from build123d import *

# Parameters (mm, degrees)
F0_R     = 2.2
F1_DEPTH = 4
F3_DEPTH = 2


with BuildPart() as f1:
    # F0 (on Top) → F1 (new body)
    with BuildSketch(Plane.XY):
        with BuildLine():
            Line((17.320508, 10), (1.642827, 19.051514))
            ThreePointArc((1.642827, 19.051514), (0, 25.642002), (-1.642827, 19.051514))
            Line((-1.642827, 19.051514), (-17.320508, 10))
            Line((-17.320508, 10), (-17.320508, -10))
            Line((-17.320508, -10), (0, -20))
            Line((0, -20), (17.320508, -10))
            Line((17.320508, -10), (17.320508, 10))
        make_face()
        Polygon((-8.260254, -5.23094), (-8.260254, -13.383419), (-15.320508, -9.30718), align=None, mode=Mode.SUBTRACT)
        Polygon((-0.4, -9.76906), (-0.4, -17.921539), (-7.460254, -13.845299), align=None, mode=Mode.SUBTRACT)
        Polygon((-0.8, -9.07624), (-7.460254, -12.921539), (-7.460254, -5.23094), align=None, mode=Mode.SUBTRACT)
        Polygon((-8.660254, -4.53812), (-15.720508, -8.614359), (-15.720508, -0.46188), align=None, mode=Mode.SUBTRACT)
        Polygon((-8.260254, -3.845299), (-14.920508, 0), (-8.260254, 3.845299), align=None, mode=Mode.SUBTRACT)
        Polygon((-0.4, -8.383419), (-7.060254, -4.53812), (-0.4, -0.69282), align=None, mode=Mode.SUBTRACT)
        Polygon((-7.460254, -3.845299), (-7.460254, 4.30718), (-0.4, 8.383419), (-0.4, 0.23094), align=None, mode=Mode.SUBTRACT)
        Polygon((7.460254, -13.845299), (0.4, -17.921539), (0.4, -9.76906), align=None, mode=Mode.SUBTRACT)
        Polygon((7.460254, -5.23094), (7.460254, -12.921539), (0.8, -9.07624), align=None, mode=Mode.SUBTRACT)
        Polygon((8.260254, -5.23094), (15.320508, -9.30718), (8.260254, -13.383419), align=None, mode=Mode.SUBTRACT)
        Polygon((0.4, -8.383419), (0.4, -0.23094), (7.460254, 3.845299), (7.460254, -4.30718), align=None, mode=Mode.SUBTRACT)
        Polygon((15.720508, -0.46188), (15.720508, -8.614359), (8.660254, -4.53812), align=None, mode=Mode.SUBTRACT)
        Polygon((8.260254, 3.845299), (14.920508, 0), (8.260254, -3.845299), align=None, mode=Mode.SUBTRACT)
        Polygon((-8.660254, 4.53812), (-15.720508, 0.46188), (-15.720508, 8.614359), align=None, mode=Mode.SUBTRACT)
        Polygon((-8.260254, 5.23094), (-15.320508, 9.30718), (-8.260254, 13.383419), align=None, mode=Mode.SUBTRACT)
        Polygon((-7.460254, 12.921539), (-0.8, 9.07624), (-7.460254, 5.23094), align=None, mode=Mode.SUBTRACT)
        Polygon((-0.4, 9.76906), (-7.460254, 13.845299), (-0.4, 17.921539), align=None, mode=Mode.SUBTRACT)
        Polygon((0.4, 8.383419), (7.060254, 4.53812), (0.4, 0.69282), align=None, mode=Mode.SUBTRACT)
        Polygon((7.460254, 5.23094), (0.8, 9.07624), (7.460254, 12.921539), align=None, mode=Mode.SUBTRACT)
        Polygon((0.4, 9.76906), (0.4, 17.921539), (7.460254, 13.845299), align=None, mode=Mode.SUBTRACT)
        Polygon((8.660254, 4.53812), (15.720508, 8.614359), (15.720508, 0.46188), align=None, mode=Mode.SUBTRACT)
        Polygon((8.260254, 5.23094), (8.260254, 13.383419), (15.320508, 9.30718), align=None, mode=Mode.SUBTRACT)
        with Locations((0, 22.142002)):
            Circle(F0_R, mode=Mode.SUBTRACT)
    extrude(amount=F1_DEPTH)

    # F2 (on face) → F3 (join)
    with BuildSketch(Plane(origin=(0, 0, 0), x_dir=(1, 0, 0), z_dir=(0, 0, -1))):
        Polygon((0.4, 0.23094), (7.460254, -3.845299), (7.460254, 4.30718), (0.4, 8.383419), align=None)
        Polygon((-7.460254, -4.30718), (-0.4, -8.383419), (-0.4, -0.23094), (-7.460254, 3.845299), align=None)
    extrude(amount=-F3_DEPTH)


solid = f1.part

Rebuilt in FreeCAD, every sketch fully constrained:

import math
import FreeCAD as App
import Part
import Sketcher

V = App.Vector
Q = App.Units.Quantity

doc = App.newDocument("Part")
body = doc.addObject("PartDesign::Body", "Body")

sketch1 = doc.addObject("Sketcher::SketchObject", "Sketch")
body.addObject(sketch1)
sketch1.AttachmentSupport = (doc.XY_Plane, [""])
sketch1.MapMode = "FlatFace"
sketch1.addGeometry([
    Part.LineSegment(V(17.3, 10, 0), V(1.6, 19.1, 0)),
    Part.ArcOfCircle(Part.Circle(V(0, 22.1, 0), V(0, 0, 1), 3.5), math.radians(-62), math.radians(242)),
    Part.LineSegment(V(-1.6, 19.1, 0), V(-17.3, 10, 0)),
    Part.LineSegment(V(-17.3, 10, 0), V(-17.3, -10, 0)),
    Part.LineSegment(V(-17.3, -10, 0), V(0, -20, 0)),
    Part.LineSegment(V(0, -20, 0), V(17.3, -10, 0)),
    Part.LineSegment(V(17.3, -10, 0), V(17.3, 10, 0)),
    Part.LineSegment(V(-15.3, -9.3, 0), V(-8.3, -5.2, 0)),
    Part.LineSegment(V(-8.3, -5.2, 0), V(-8.3, -13.4, 0)),
    Part.LineSegment(V(-8.3, -13.4, 0), V(-15.3, -9.3, 0)),
    Part.LineSegment(V(-7.5, -13.8, 0), V(-0.4, -9.8, 0)),
    Part.LineSegment(V(-0.4, -9.8, 0), V(-0.4, -17.9, 0)),
    Part.LineSegment(V(-0.4, -17.9, 0), V(-7.5, -13.8, 0)),
    Part.LineSegment(V(-7.5, -5.2, 0), V(-0.8, -9.1, 0)),
    Part.LineSegment(V(-0.8, -9.1, 0), V(-7.5, -12.9, 0)),
    Part.LineSegment(V(-7.5, -12.9, 0), V(-7.5, -5.2, 0)),
    Part.LineSegment(V(-15.7, -0.5, 0), V(-8.7, -4.5, 0)),
    Part.LineSegment(V(-8.7, -4.5, 0), V(-15.7, -8.6, 0)),
    Part.LineSegment(V(-15.7, -8.6, 0), V(-15.7, -0.5, 0)),
    Part.LineSegment(V(-8.3, 3.8, 0), V(-8.3, -3.8, 0)),
    Part.LineSegment(V(-8.3, -3.8, 0), V(-14.9, 0, 0)),
    Part.LineSegment(V(-14.9, 0, 0), V(-8.3, 3.8, 0)),
    Part.LineSegment(V(-0.4, -0.7, 0), V(-0.4, -8.4, 0)),
    Part.LineSegment(V(-0.4, -8.4, 0), V(-7.1, -4.5, 0)),
    Part.LineSegment(V(-7.1, -4.5, 0), V(-0.4, -0.7, 0)),
    Part.LineSegment(V(-0.4, 0.2, 0), V(-7.5, -3.8, 0)),
    Part.LineSegment(V(-7.5, -3.8, 0), V(-7.5, 4.3, 0)),
    Part.LineSegment(V(-7.5, 4.3, 0), V(-0.4, 8.4, 0)),
    Part.LineSegment(V(-0.4, 8.4, 0), V(-0.4, 0.2, 0)),
    Part.LineSegment(V(0.4, -9.8, 0), V(7.5, -13.8, 0)),
    Part.LineSegment(V(7.5, -13.8, 0), V(0.4, -17.9, 0)),
    Part.LineSegment(V(0.4, -17.9, 0), V(0.4, -9.8, 0)),
    Part.LineSegment(V(0.8, -9.1, 0), V(7.5, -5.2, 0)),
    Part.LineSegment(V(7.5, -5.2, 0), V(7.5, -12.9, 0)),
    Part.LineSegment(V(7.5, -12.9, 0), V(0.8, -9.1, 0)),
    Part.LineSegment(V(8.3, -13.4, 0), V(8.3, -5.2, 0)),
    Part.LineSegment(V(8.3, -5.2, 0), V(15.3, -9.3, 0)),
    Part.LineSegment(V(15.3, -9.3, 0), V(8.3, -13.4, 0)),
    Part.LineSegment(V(7.5, -4.3, 0), V(0.4, -8.4, 0)),
    Part.LineSegment(V(0.4, -8.4, 0), V(0.4, -0.2, 0)),
    Part.LineSegment(V(0.4, -0.2, 0), V(7.5, 3.8, 0)),
    Part.LineSegment(V(7.5, 3.8, 0), V(7.5, -4.3, 0)),
    Part.LineSegment(V(8.7, -4.5, 0), V(15.7, -0.5, 0)),
    Part.LineSegment(V(15.7, -0.5, 0), V(15.7, -8.6, 0)),
    Part.LineSegment(V(15.7, -8.6, 0), V(8.7, -4.5, 0)),
    Part.LineSegment(V(8.3, -3.8, 0), V(8.3, 3.8, 0)),
    Part.LineSegment(V(8.3, 3.8, 0), V(14.9, 0, 0)),
    Part.LineSegment(V(14.9, 0, 0), V(8.3, -3.8, 0)),
    Part.LineSegment(V(-15.7, 8.6, 0), V(-8.7, 4.5, 0)),
    Part.LineSegment(V(-8.7, 4.5, 0), V(-15.7, 0.5, 0)),
    Part.LineSegment(V(-15.7, 0.5, 0), V(-15.7, 8.6, 0)),
    Part.LineSegment(V(-8.3, 13.4, 0), V(-8.3, 5.2, 0)),
    Part.LineSegment(V(-8.3, 5.2, 0), V(-15.3, 9.3, 0)),
    Part.LineSegment(V(-15.3, 9.3, 0), V(-8.3, 13.4, 0)),
    Part.LineSegment(V(-7.5, 5.2, 0), V(-7.5, 12.9, 0)),
    Part.LineSegment(V(-7.5, 12.9, 0), V(-0.8, 9.1, 0)),
    Part.LineSegment(V(-0.8, 9.1, 0), V(-7.5, 5.2, 0)),
    Part.LineSegment(V(-0.4, 17.9, 0), V(-0.4, 9.8, 0)),
    Part.LineSegment(V(-0.4, 9.8, 0), V(-7.5, 13.8, 0)),
    Part.LineSegment(V(-7.5, 13.8, 0), V(-0.4, 17.9, 0)),
    Part.Circle(V(0, 22.1, 0), V(0, 0, 1), 2.2),
    Part.LineSegment(V(0.4, 0.7, 0), V(0.4, 8.4, 0)),
    Part.LineSegment(V(0.4, 8.4, 0), V(7.1, 4.5, 0)),
    Part.LineSegment(V(7.1, 4.5, 0), V(0.4, 0.7, 0)),
    Part.LineSegment(V(7.5, 12.9, 0), V(7.5, 5.2, 0)),
    Part.LineSegment(V(7.5, 5.2, 0), V(0.8, 9.1, 0)),
    Part.LineSegment(V(0.8, 9.1, 0), V(7.5, 12.9, 0)),
    Part.LineSegment(V(15.7, 0.5, 0), V(8.7, 4.5, 0)),
    Part.LineSegment(V(8.7, 4.5, 0), V(15.7, 8.6, 0)),
    Part.LineSegment(V(15.7, 8.6, 0), V(15.7, 0.5, 0)),
    Part.LineSegment(V(15.3, 9.3, 0), V(8.3, 5.2, 0)),
    Part.LineSegment(V(8.3, 5.2, 0), V(8.3, 13.4, 0)),
    Part.LineSegment(V(8.3, 13.4, 0), V(15.3, 9.3, 0)),
    Part.LineSegment(V(7.5, 13.8, 0), V(0.4, 9.8, 0)),
    Part.LineSegment(V(0.4, 9.8, 0), V(0.4, 17.9, 0)),
    Part.LineSegment(V(0.4, 17.9, 0), V(7.5, 13.8, 0)),
], False)
sketch1.addConstraint([
    Sketcher.Constraint("Coincident", 0, 2, 1, 1),
    Sketcher.Constraint("Coincident", 1, 2, 2, 1),
    Sketcher.Constraint("Coincident", 2, 2, 3, 1),
    Sketcher.Constraint("Coincident", 3, 2, 4, 1),
    Sketcher.Constraint("Coincident", 4, 2, 5, 1),
    Sketcher.Constraint("Coincident", 5, 2, 6, 1),
    Sketcher.Constraint("Coincident", 6, 2, 0, 1),
    Sketcher.Constraint("Coincident", 7, 2, 8, 1),
    Sketcher.Constraint("Coincident", 8, 2, 9, 1),
    Sketcher.Constraint("Coincident", 9, 2, 7, 1),
    Sketcher.Constraint("Coincident", 10, 2, 11, 1),
    Sketcher.Constraint("Coincident", 11, 2, 12, 1),
    Sketcher.Constraint("Coincident", 12, 2, 10, 1),
    Sketcher.Constraint("Coincident", 13, 2, 14, 1),
    Sketcher.Constraint("Coincident", 14, 2, 15, 1),
    Sketcher.Constraint("Coincident", 15, 2, 13, 1),
    Sketcher.Constraint("Coincident", 16, 2, 17, 1),
    Sketcher.Constraint("Coincident", 17, 2, 18, 1),
    Sketcher.Constraint("Coincident", 18, 2, 16, 1),
    Sketcher.Constraint("Coincident", 19, 2, 20, 1),
    Sketcher.Constraint("Coincident", 20, 2, 21, 1),
    Sketcher.Constraint("Coincident", 21, 2, 19, 1),
    Sketcher.Constraint("Coincident", 22, 2, 23, 1),
    Sketcher.Constraint("Coincident", 23, 2, 24, 1),
    Sketcher.Constraint("Coincident", 24, 2, 22, 1),
    Sketcher.Constraint("Coincident", 25, 2, 26, 1),
    Sketcher.Constraint("Coincident", 26, 2, 27, 1),
    Sketcher.Constraint("Coincident", 27, 2, 28, 1),
    Sketcher.Constraint("Coincident", 28, 2, 25, 1),
    Sketcher.Constraint("Coincident", 29, 2, 30, 1),
    Sketcher.Constraint("Coincident", 30, 2, 31, 1),
    Sketcher.Constraint("Coincident", 31, 2, 29, 1),
    Sketcher.Constraint("Coincident", 32, 2, 33, 1),
    Sketcher.Constraint("Coincident", 33, 2, 34, 1),
    Sketcher.Constraint("Coincident", 34, 2, 32, 1),
    Sketcher.Constraint("Coincident", 35, 2, 36, 1),
    Sketcher.Constraint("Coincident", 36, 2, 37, 1),
    Sketcher.Constraint("Coincident", 37, 2, 35, 1),
    Sketcher.Constraint("Coincident", 38, 2, 39, 1),
    Sketcher.Constraint("Coincident", 39, 2, 40, 1),
    Sketcher.Constraint("Coincident", 40, 2, 41, 1),
    Sketcher.Constraint("Coincident", 41, 2, 38, 1),
    Sketcher.Constraint("Coincident", 42, 2, 43, 1),
    Sketcher.Constraint("Coincident", 43, 2, 44, 1),
    Sketcher.Constraint("Coincident", 44, 2, 42, 1),
    Sketcher.Constraint("Coincident", 45, 2, 46, 1),
    Sketcher.Constraint("Coincident", 46, 2, 47, 1),
    Sketcher.Constraint("Coincident", 47, 2, 45, 1),
    Sketcher.Constraint("Coincident", 48, 2, 49, 1),
    Sketcher.Constraint("Coincident", 49, 2, 50, 1),
    Sketcher.Constraint("Coincident", 50, 2, 48, 1),
    Sketcher.Constraint("Coincident", 51, 2, 52, 1),
    Sketcher.Constraint("Coincident", 52, 2, 53, 1),
    Sketcher.Constraint("Coincident", 53, 2, 51, 1),
    Sketcher.Constraint("Coincident", 54, 2, 55, 1),
    Sketcher.Constraint("Coincident", 55, 2, 56, 1),
    Sketcher.Constraint("Coincident", 56, 2, 54, 1),
    Sketcher.Constraint("Coincident", 57, 2, 58, 1),
    Sketcher.Constraint("Coincident", 58, 2, 59, 1),
    Sketcher.Constraint("Coincident", 59, 2, 57, 1),
    Sketcher.Constraint("Coincident", 61, 2, 62, 1),
    Sketcher.Constraint("Coincident", 62, 2, 63, 1),
    Sketcher.Constraint("Coincident", 63, 2, 61, 1),
    Sketcher.Constraint("Coincident", 64, 2, 65, 1),
    Sketcher.Constraint("Coincident", 65, 2, 66, 1),
    Sketcher.Constraint("Coincident", 66, 2, 64, 1),
    Sketcher.Constraint("Coincident", 67, 2, 68, 1),
    Sketcher.Constraint("Coincident", 68, 2, 69, 1),
    Sketcher.Constraint("Coincident", 69, 2, 67, 1),
    Sketcher.Constraint("Coincident", 70, 2, 71, 1),
    Sketcher.Constraint("Coincident", 71, 2, 72, 1),
    Sketcher.Constraint("Coincident", 72, 2, 70, 1),
    Sketcher.Constraint("Coincident", 73, 2, 74, 1),
    Sketcher.Constraint("Coincident", 74, 2, 75, 1),
    Sketcher.Constraint("Coincident", 75, 2, 73, 1),
    Sketcher.Constraint("Vertical", 3),
    Sketcher.Constraint("Vertical", 6),
    Sketcher.Constraint("Vertical", 8),
    Sketcher.Constraint("Vertical", 11),
    Sketcher.Constraint("Vertical", 15),
    Sketcher.Constraint("Vertical", 18),
    Sketcher.Constraint("Vertical", 19),
    Sketcher.Constraint("Vertical", 22),
    Sketcher.Constraint("Vertical", 26),
    Sketcher.Constraint("Vertical", 28),
    Sketcher.Constraint("Vertical", 31),
    Sketcher.Constraint("Vertical", 33),
    Sketcher.Constraint("Vertical", 35),
    Sketcher.Constraint("Vertical", 39),
    Sketcher.Constraint("Vertical", 41),
    Sketcher.Constraint("Vertical", 43),
    Sketcher.Constraint("Vertical", 45),
    Sketcher.Constraint("Vertical", 50),
    Sketcher.Constraint("Vertical", 51),
    Sketcher.Constraint("Vertical", 54),
    Sketcher.Constraint("Vertical", 57),
    Sketcher.Constraint("Vertical", 61),
    Sketcher.Constraint("Vertical", 64),
    Sketcher.Constraint("Vertical", 69),
    Sketcher.Constraint("Vertical", 71),
    Sketcher.Constraint("Vertical", 74),
    Sketcher.Constraint("Coincident", 60, 3, 1, 3),
    Sketcher.Constraint("Symmetric", 2, 2, 5, 2, -1, 1),
    Sketcher.Constraint("Symmetric", 27, 2, 38, 2, -1, 1),
    Sketcher.Constraint("Symmetric", 25, 2, 40, 2, -1, 1),
    Sketcher.Constraint("Symmetric", 19, 2, 45, 2, -1, 1),
    Sketcher.Constraint("Symmetric", 20, 2, 46, 2, -1, 1),
    Sketcher.Constraint("Symmetric", 44, 2, 48, 2, -1, 1),
    Sketcher.Constraint("Symmetric", 42, 2, 49, 2, -1, 1),
    Sketcher.Constraint("Symmetric", 35, 2, 51, 2, -1, 1),
    Sketcher.Constraint("Symmetric", 36, 2, 52, 2, -1, 1),
    Sketcher.Constraint("Symmetric", 33, 2, 54, 2, -1, 1),
    Sketcher.Constraint("Symmetric", 34, 2, 55, 2, -1, 1),
    Sketcher.Constraint("Symmetric", 31, 2, 57, 2, -1, 1),
    Sketcher.Constraint("Symmetric", 29, 2, 58, 2, -1, 1),
    Sketcher.Constraint("Symmetric", 22, 2, 61, 2, -1, 1),
    Sketcher.Constraint("Symmetric", 23, 2, 62, 2, -1, 1),
    Sketcher.Constraint("Symmetric", 15, 2, 64, 2, -1, 1),
    Sketcher.Constraint("Symmetric", 13, 2, 65, 2, -1, 1),
    Sketcher.Constraint("Symmetric", 16, 2, 67, 2, -1, 1),
    Sketcher.Constraint("Symmetric", 17, 2, 68, 2, -1, 1),
    Sketcher.Constraint("Symmetric", 7, 2, 70, 2, -1, 1),
    Sketcher.Constraint("Symmetric", 9, 2, 72, 2, -1, 1),
    Sketcher.Constraint("Symmetric", 10, 2, 73, 2, -1, 1),
    Sketcher.Constraint("Symmetric", 12, 2, 75, 2, -1, 1),
    Sketcher.Constraint("Symmetric", 0, 2, 1, 2, -2),
    Sketcher.Constraint("Symmetric", 12, 2, 29, 2, -2),
    Sketcher.Constraint("Symmetric", 11, 2, 30, 2, -2),
    Sketcher.Constraint("Symmetric", 15, 2, 32, 2, -2),
    Sketcher.Constraint("Symmetric", 13, 2, 34, 2, -2),
    Sketcher.Constraint("Symmetric", 7, 2, 35, 2, -2),
    Sketcher.Constraint("Symmetric", 9, 2, 36, 2, -2),
    Sketcher.Constraint("Symmetric", 22, 2, 38, 2, -2),
    Sketcher.Constraint("Symmetric", 18, 2, 42, 2, -2),
    Sketcher.Constraint("Symmetric", 16, 2, 44, 2, -2),
    Sketcher.Constraint("PointOnObject", 4, 2, -2),
    Sketcher.Constraint("PointOnObject", 20, 2, -1),
    Sketcher.Constraint("Parallel", 0, 4),
    Sketcher.Constraint("Parallel", 2, 5),
    Sketcher.Constraint("Parallel", 5, 7),
    Sketcher.Constraint("Parallel", 4, 9),
    Sketcher.Constraint("Parallel", 7, 10),
    Sketcher.Constraint("Parallel", 9, 12),
    Sketcher.Constraint("Parallel", 12, 13),
    Sketcher.Constraint("Parallel", 10, 14),
    Sketcher.Constraint("Parallel", 13, 16),
    Sketcher.Constraint("Parallel", 14, 17),
    Sketcher.Constraint("Parallel", 16, 20),
    Sketcher.Constraint("Parallel", 17, 21),
    Sketcher.Constraint("Parallel", 20, 23),
    Sketcher.Constraint("Parallel", 21, 24),
    Sketcher.Constraint("Parallel", 24, 25),
    Sketcher.Constraint("Parallel", 25, 27),
    Sketcher.Constraint("Parallel", 23, 29),
    Sketcher.Constraint("Parallel", 27, 30),
    Sketcher.Constraint("Parallel", 29, 34),
    Sketcher.Constraint("Parallel", 32, 37),
    Sketcher.Constraint("Parallel", 37, 38),
    Sketcher.Constraint("Parallel", 38, 40),
    Sketcher.Constraint("Parallel", 36, 44),
    Sketcher.Constraint("Parallel", 42, 47),
    Sketcher.Constraint("Parallel", 46, 48),
    Sketcher.Constraint("Parallel", 49, 53),
    Sketcher.Constraint("Parallel", 53, 56),
    Sketcher.Constraint("Parallel", 56, 59),
    Sketcher.Constraint("Parallel", 59, 63),
    Sketcher.Constraint("Parallel", 63, 66),
    Sketcher.Constraint("Parallel", 65, 67),
    Sketcher.Constraint("Parallel", 67, 72),
    Sketcher.Constraint("Parallel", 72, 75),
    Sketcher.Constraint("Horizontal", 7, 2, 15, 2),
    Sketcher.Constraint("Horizontal", 16, 2, 23, 2),
    Sketcher.Constraint("Horizontal", 19, 2, 25, 2),
    Sketcher.Constraint("Vertical", 12, 2, 14, 2),
    Sketcher.Constraint("Vertical", 8, 2, 19, 2),
    Sketcher.Constraint("Vertical", 11, 2, 22, 2),
    Sketcher.Constraint("Vertical", 15, 2, 25, 2),
    Sketcher.Constraint("Equal", 8, 11),
    Sketcher.Constraint("Equal", 11, 18),
    Sketcher.Constraint("Equal", 15, 19),
    Sketcher.Constraint("Equal", 19, 22),
    Sketcher.Constraint("Equal", 18, 26),
    Sketcher.Constraint("Diameter", 60, 4.4),
    Sketcher.Constraint("Radius", 1, 3.5),
    Sketcher.Constraint("DistanceY", 3, 2, 3, 1, 20.0),
    Sketcher.Constraint("Angle", 0, Q("149.999998 deg")),
    Sketcher.Constraint("Distance", 4, 20.0),
    Sketcher.Constraint("DistanceX", 10, 2, -1, 1, 0.4),
    Sketcher.Constraint("DistanceX", 13, 2, -1, 1, 0.8),
    Sketcher.Constraint("DistanceY", 15, 1, 15, 2, 7.690599),
    Sketcher.Constraint("DistanceY", 12, 2, -1, 1, 13.845299),
    Sketcher.Constraint("DistanceY", 7, 2, -1, 1, 5.23094),
    Sketcher.Constraint("Distance", 0, 18.103027),
    Sketcher.Constraint("DistanceX", 7, 2, -1, 1, 8.260254),
    Sketcher.Constraint("DistanceX", 16, 2, -1, 1, 8.660254),
])
pad1 = doc.addObject("PartDesign::Pad", "Pad")
body.addObject(pad1)
pad1.Profile = sketch1
pad1.Length = 4

sketch2 = doc.addObject("Sketcher::SketchObject", "Sketch001")
body.addObject(sketch2)
sketch2.AttachmentSupport = (doc.XY_Plane, [""])
sketch2.MapMode = "FlatFace"
sketch2.addGeometry([
    Part.LineSegment(V(0, 0, 0), V(7, 4, 0)),
    Part.LineSegment(V(7, 4, 0), V(7, -4, 0)),
    Part.LineSegment(V(7, -4, 0), V(0, -8, 0)),
    Part.LineSegment(V(0, -8, 0), V(0, 0, 0)),
    Part.LineSegment(V(-7, 4, 0), V(0, 8, 0)),
    Part.LineSegment(V(0, 8, 0), V(0, 0, 0)),
    Part.LineSegment(V(0, 0, 0), V(-7, -4, 0)),
    Part.LineSegment(V(-7, -4, 0), V(-7, 4, 0)),
], False)
sketch2.addConstraint([
    Sketcher.Constraint("Coincident", 0, 2, 1, 1),
    Sketcher.Constraint("Coincident", 1, 2, 2, 1),
    Sketcher.Constraint("Coincident", 2, 2, 3, 1),
    Sketcher.Constraint("Coincident", 3, 2, 0, 1),
    Sketcher.Constraint("Coincident", 4, 2, 5, 1),
    Sketcher.Constraint("Coincident", 5, 2, 6, 1),
    Sketcher.Constraint("Coincident", 6, 2, 7, 1),
    Sketcher.Constraint("Coincident", 7, 2, 4, 1),
    Sketcher.Constraint("Vertical", 1),
    Sketcher.Constraint("Vertical", 3),
    Sketcher.Constraint("Vertical", 5),
    Sketcher.Constraint("Vertical", 7),
    Sketcher.Constraint("Symmetric", 2, 2, 4, 2, -1, 1),
    Sketcher.Constraint("Symmetric", 0, 2, 6, 2, -1, 1),
    Sketcher.Constraint("Parallel", 0, 2),
    Sketcher.Constraint("Parallel", 2, 4),
    Sketcher.Constraint("Parallel", 4, 6),
    Sketcher.Constraint("Angle", 0, Q("29.999997 deg")),
    Sketcher.Constraint("DistanceX", -1, 1, 2, 2, 0.4),
    Sketcher.Constraint("DistanceY", 1, 2, 1, 1, 8.152479),
    Sketcher.Constraint("DistanceY", -1, 1, 0, 2, 3.845299),
    Sketcher.Constraint("DistanceY", 1, 2, 4, 2, 12.690599),
])
pad2 = doc.addObject("PartDesign::Pad", "Pad001")
body.addObject(pad2)
pad2.Profile = sketch2
pad2.Length = 2

doc.recompute()
